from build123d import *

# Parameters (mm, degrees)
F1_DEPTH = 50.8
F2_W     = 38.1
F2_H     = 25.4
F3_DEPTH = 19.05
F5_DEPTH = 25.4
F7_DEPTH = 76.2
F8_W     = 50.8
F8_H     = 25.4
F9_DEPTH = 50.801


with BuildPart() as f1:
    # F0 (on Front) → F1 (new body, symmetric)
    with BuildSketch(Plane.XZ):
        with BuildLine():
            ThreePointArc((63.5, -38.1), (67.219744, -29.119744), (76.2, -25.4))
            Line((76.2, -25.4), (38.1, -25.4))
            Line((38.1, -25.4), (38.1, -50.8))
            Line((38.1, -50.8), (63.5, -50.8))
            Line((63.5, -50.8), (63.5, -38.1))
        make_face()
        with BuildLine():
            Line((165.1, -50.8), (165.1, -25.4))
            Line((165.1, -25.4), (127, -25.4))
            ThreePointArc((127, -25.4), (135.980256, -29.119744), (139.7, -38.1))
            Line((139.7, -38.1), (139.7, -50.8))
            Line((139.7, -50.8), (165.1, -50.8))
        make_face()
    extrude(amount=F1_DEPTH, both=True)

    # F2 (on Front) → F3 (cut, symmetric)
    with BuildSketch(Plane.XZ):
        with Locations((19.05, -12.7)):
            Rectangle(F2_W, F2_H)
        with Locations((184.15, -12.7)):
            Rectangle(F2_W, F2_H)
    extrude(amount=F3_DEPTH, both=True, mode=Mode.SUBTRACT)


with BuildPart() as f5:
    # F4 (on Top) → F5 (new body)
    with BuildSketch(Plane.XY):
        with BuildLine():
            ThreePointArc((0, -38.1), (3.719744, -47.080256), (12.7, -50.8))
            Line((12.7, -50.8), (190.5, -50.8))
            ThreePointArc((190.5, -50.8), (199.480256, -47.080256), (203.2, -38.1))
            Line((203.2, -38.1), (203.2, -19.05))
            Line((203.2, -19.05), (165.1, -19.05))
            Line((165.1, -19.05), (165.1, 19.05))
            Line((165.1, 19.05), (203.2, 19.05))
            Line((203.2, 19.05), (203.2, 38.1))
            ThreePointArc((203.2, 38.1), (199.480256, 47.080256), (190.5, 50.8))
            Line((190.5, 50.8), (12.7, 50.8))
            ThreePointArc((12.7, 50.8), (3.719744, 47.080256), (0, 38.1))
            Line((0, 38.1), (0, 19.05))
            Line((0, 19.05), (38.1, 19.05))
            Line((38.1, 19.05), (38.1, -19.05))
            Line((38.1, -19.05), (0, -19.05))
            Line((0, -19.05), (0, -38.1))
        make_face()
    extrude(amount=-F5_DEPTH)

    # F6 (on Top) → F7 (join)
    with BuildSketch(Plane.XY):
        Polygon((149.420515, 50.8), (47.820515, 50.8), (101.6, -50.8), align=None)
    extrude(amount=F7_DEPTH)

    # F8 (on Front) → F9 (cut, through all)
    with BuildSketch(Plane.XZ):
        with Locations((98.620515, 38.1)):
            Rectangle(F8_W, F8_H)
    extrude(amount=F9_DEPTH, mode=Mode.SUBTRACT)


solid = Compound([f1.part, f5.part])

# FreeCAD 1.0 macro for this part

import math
import FreeCAD as App
import Part
import Sketcher
from FreeCAD import Vector
Q = App.Units.Quantity

doc = App.newDocument("Part")
params = doc.addObject("Spreadsheet::Sheet", "Params")
for row, (alias, value) in enumerate([
    ("sketch1_radius", "0.5 in"),
    ("sketch1_width", "1 in"),
    ("pad1_length", "4 in"),
    ("sketch2_height", "1 in"),
    ("sketch2_width", "1.5 in"),
    ("pocket1_length", "1.5 in"),
    ("sketch3_radius", "0.5 in"),
    ("sketch3_width", "7 in"),
    ("sketch3_width2", "1.5 in"),
    ("pad2_length", "1 in"),
    ("sketch4_width", "4 in"),
    ("pad3_length", "3 in"),
    ("sketch5_width", "2 in"),
    ("sketch5_height", "1 in"),
], start=1):
    params.set(f"A{row}", alias)
    params.set(f"B{row}", "=" + value)
    params.setAlias(f"B{row}", alias)

body = doc.addObject("PartDesign::Body", "Body")
body.AllowCompound = True

sketch1 = body.newObject("Sketcher::SketchObject", "Sketch")
sketch1.AttachmentSupport = (doc.getObject("XZ_Plane"), [""])
sketch1.MapMode = "FlatFace"
sketch1.addGeometry([
    Part.ArcOfCircle(Part.Circle(Vector(76.2, -38.1, 0), Vector(0, 0, 1), 12.7), math.radians(90.000002), math.radians(179.999998)),
    Part.LineSegment(Vector(76.2, -25.4, 0), Vector(38.1, -25.4, 0)),
    Part.LineSegment(Vector(38.1, -25.4, 0), Vector(38.1, -50.8, 0)),
    Part.LineSegment(Vector(38.1, -50.8, 0), Vector(63.5, -50.8, 0)),
    Part.LineSegment(Vector(63.5, -50.8, 0), Vector(63.5, -38.1, 0)),
    Part.LineSegment(Vector(165.1, -50.8, 0), Vector(165.1, -25.4, 0)),
    Part.LineSegment(Vector(165.1, -25.4, 0), Vector(127, -25.4, 0)),
    Part.ArcOfCircle(Part.Circle(Vector(127, -38.1, 0), Vector(0, 0, 1), 12.7), math.radians(0.000002), math.radians(89.999998)),
    Part.LineSegment(Vector(139.7, -38.1, 0), Vector(139.7, -50.8, 0)),
    Part.LineSegment(Vector(139.7, -50.8, 0), Vector(165.1, -50.8, 0)),
], False)
sketch1.addConstraint([
    Sketcher.Constraint("Tangent", 0, 1, 1, 1),
    Sketcher.Constraint("Coincident", 1, 2, 2, 1),
    Sketcher.Constraint("Coincident", 2, 2, 3, 1),
    Sketcher.Constraint("Coincident", 3, 2, 4, 1),
    Sketcher.Constraint("Tangent", 4, 2, 0, 2),
    Sketcher.Constraint("Coincident", 5, 2, 6, 1),
    Sketcher.Constraint("Tangent", 6, 2, 7, 2),
    Sketcher.Constraint("Tangent", 7, 1, 8, 1),
    Sketcher.Constraint("Coincident", 8, 2, 9, 1),
    Sketcher.Constraint("Coincident", 9, 2, 5, 1),
    Sketcher.Constraint("Horizontal", 1),
    Sketcher.Constraint("Vertical", 2),
    Sketcher.Constraint("Horizontal", 3),
    Sketcher.Constraint("Vertical", 4),
    Sketcher.Constraint("Vertical", 5),
    Sketcher.Constraint("Horizontal", 6),
    Sketcher.Constraint("Vertical", 8),
    Sketcher.Constraint("Horizontal", 9),
    Sketcher.Constraint("Equal", 0, 7),
    Sketcher.Constraint("Horizontal", 0, 3, 7, 3),
    Sketcher.Constraint("Horizontal", 3, 2, 8, 2),
    Sketcher.Constraint("Equal", 1, 6),
    Sketcher.Constraint("Equal", 9, 2),
    Sketcher.Constraint("Radius", 0, Q("0.5 in")),
    Sketcher.Constraint("DistanceX", 3, 1, 3, 2, Q("1 in")),
    Sketcher.Constraint("DistanceX", -1, 1, 0, 3, Q("3 in")),
    Sketcher.Constraint("DistanceX", -1, 1, 7, 3, Q("5 in")),
    Sketcher.Constraint("DistanceY", 0, 1, -1, 1, Q("1 in")),
])
sketch1.setExpression("Constraints[23]", "Params.sketch1_radius")
sketch1.setExpression("Constraints[24]", "Params.sketch1_width")
pad1 = body.newObject("PartDesign::Pad", "Pad")
pad1.Profile = sketch1
pad1.setExpression("Length", "Params.pad1_length")
pad1.Midplane = True

sketch2 = body.newObject("Sketcher::SketchObject", "Sketch001")
sketch2.AttachmentSupport = (doc.getObject("XZ_Plane"), [""])
sketch2.MapMode = "FlatFace"
sketch2.addGeometry([
    Part.LineSegment(Vector(0, 0, 0), Vector(0, -25.4, 0)),
    Part.LineSegment(Vector(0, -25.4, 0), Vector(38.1, -25.4, 0)),
    Part.LineSegment(Vector(38.1, -25.4, 0), Vector(38.1, 0, 0)),
    Part.LineSegment(Vector(38.1, 0, 0), Vector(0, 0, 0)),
    Part.LineSegment(Vector(165.1, 0, 0), Vector(165.1, -25.4, 0)),
    Part.LineSegment(Vector(165.1, -25.4, 0), Vector(203.2, -25.4, 0)),
    Part.LineSegment(Vector(203.2, -25.4, 0), Vector(203.2, 0, 0)),
    Part.LineSegment(Vector(203.2, 0, 0), Vector(165.1, 0, 0)),
], False)
sketch2.addConstraint([
    Sketcher.Constraint("Coincident", 0, 2, 1, 1),
    Sketcher.Constraint("Coincident", 1, 2, 2, 1),
    Sketcher.Constraint("Coincident", 2, 2, 3, 1),
    Sketcher.Constraint("Coincident", 3, 2, 0, 1),
    Sketcher.Constraint("Coincident", 4, 2, 5, 1),
    Sketcher.Constraint("Coincident", 5, 2, 6, 1),
    Sketcher.Constraint("Coincident", 6, 2, 7, 1),
    Sketcher.Constraint("Coincident", 7, 2, 4, 1),
    Sketcher.Constraint("Vertical", 0),
    Sketcher.Constraint("Horizontal", 1),
    Sketcher.Constraint("Vertical", 2),
    Sketcher.Constraint("Horizontal", 3),
    Sketcher.Constraint("Vertical", 4),
    Sketcher.Constraint("Horizontal", 5),
    Sketcher.Constraint("Vertical", 6),
    Sketcher.Constraint("Horizontal", 7),
    Sketcher.Constraint("Coincident", 3, 2, -1, 1),
    Sketcher.Constraint("PointOnObject", 6, 2, -1),
    Sketcher.Constraint("Horizontal", 1, 2, 4, 2),
    Sketcher.Constraint("Equal", 3, 5),
    Sketcher.Constraint("DistanceY", 0, 2, 0, 1, Q("1 in")),
    Sketcher.Constraint("DistanceX", 1, 1, 1, 2, Q("1.5 in")),
    Sketcher.Constraint("DistanceX", -1, 1, 5, 2, Q("8 in")),
])
sketch2.setExpression("Constraints[20]", "Params.sketch2_height")
sketch2.setExpression("Constraints[21]", "Params.sketch2_width")
pocket1 = body.newObject("PartDesign::Pocket", "Pocket")
pocket1.Profile = sketch2
pocket1.setExpression("Length", "Params.pocket1_length")
pocket1.Midplane = True
body2 = doc.addObject("PartDesign::Body", "Body001")

sketch3 = body2.newObject("Sketcher::SketchObject", "Sketch002")
sketch3.AttachmentSupport = (doc.getObject("XY_Plane001"), [""])
sketch3.MapMode = "FlatFace"
sketch3.addGeometry([
    Part.ArcOfCircle(Part.Circle(Vector(12.7, -38.1, 0), Vector(0, 0, 1), 12.7), math.radians(-179.999998), math.radians(-90.000002)),
    Part.LineSegment(Vector(12.7, -50.8, 0), Vector(190.5, -50.8, 0)),
    Part.ArcOfCircle(Part.Circle(Vector(190.5, -38.1, 0), Vector(0, 0, 1), 12.7), math.radians(-89.999998), math.radians(-0.000002)),
    Part.LineSegment(Vector(203.2, -38.1, 0), Vector(203.2, -19.05, 0)),
    Part.LineSegment(Vector(203.2, -19.05, 0), Vector(165.1, -19.05, 0)),
    Part.LineSegment(Vector(165.1, -19.05, 0), Vector(165.1, 19.05, 0)),
    Part.LineSegment(Vector(165.1, 19.05, 0), Vector(203.2, 19.05, 0)),
    Part.LineSegment(Vector(203.2, 19.05, 0), Vector(203.2, 38.1, 0)),
    Part.ArcOfCircle(Part.Circle(Vector(190.5, 38.1, 0), Vector(0, 0, 1), 12.7), math.radians(0.000002), math.radians(89.999998)),
    Part.LineSegment(Vector(190.5, 50.8, 0), Vector(12.7, 50.8, 0)),
    Part.ArcOfCircle(Part.Circle(Vector(12.7, 38.1, 0), Vector(0, 0, 1), 12.7), math.radians(90.000002), math.radians(179.999998)),
    Part.LineSegment(Vector(0, 38.1, 0), Vector(0, 19.05, 0)),
    Part.LineSegment(Vector(0, 19.05, 0), Vector(38.1, 19.05, 0)),
    Part.LineSegment(Vector(38.1, 19.05, 0), Vector(38.1, -19.05, 0)),
    Part.LineSegment(Vector(38.1, -19.05, 0), Vector(0, -19.05, 0)),
    Part.LineSegment(Vector(0, -19.05, 0), Vector(0, -38.1, 0)),
], False)
sketch3.addConstraint([
    Sketcher.Constraint("Tangent", 0, 2, 1, 1),
    Sketcher.Constraint("Tangent", 1, 2, 2, 1),
    Sketcher.Constraint("Tangent", 2, 2, 3, 1),
    Sketcher.Constraint("Coincident", 3, 2, 4, 1),
    Sketcher.Constraint("Coincident", 4, 2, 5, 1),
    Sketcher.Constraint("Coincident", 5, 2, 6, 1),
    Sketcher.Constraint("Coincident", 6, 2, 7, 1),
    Sketcher.Constraint("Tangent", 7, 2, 8, 1),
    Sketcher.Constraint("Tangent", 8, 2, 9, 1),
    Sketcher.Constraint("Tangent", 9, 2, 10, 1),
    Sketcher.Constraint("Tangent", 10, 2, 11, 1),
    Sketcher.Constraint("Coincident", 11, 2, 12, 1),
    Sketcher.Constraint("Coincident", 12, 2, 13, 1),
    Sketcher.Constraint("Coincident", 13, 2, 14, 1),
    Sketcher.Constraint("Coincident", 14, 2, 15, 1),
    Sketcher.Constraint("Tangent", 15, 2, 0, 1),
    Sketcher.Constraint("Horizontal", 1),
    Sketcher.Constraint("Vertical", 3),
    Sketcher.Constraint("Horizontal", 4),
    Sketcher.Constraint("Vertical", 5),
    Sketcher.Constraint("Horizontal", 6),
    Sketcher.Constraint("Vertical", 7),
    Sketcher.Constraint("Horizontal", 9),
    Sketcher.Constraint("Vertical", 11),
    Sketcher.Constraint("Horizontal", 12),
    Sketcher.Constraint("Vertical", 13),
    Sketcher.Constraint("Horizontal", 14),
    Sketcher.Constraint("Vertical", 15),
    Sketcher.Constraint("Equal", 0, 2),
    Sketcher.Constraint("Equal", 2, 8),
    Sketcher.Constraint("Equal", 8, 10),
    Sketcher.Constraint("Symmetric", 11, 2, 14, 2, -1, 1),
    Sketcher.Constraint("Symmetric", 2, 3, 8, 3, -1),
    Sketcher.Constraint("PointOnObject", 10, 2, -2),
    Sketcher.Constraint("Horizontal", 6, 2, 11, 2),
    Sketcher.Constraint("Horizontal", 4, 2, 13, 2),
    Sketcher.Constraint("Equal", 6, 12),
    Sketcher.Constraint("Equal", 14, 5),
    Sketcher.Constraint("Radius", 0, Q("0.5 in")),
    Sketcher.Constraint("DistanceX", 1, 1, 1, 2, Q("7 in")),
    Sketcher.Constraint("DistanceX", 4, 2, 4, 1, Q("1.5 in")),
    Sketcher.Constraint("DistanceY", 0, 2, -1, 1, Q("2 in")),
])
sketch3.setExpression("Constraints[38]", "Params.sketch3_radius")
sketch3.setExpression("Constraints[39]", "Params.sketch3_width")
sketch3.setExpression("Constraints[40]", "Params.sketch3_width2")
pad2 = body2.newObject("PartDesign::Pad", "Pad001")
pad2.Profile = sketch3
pad2.setExpression("Length", "Params.pad2_length")
pad2.Reversed = True

sketch4 = body2.newObject("Sketcher::SketchObject", "Sketch003")
sketch4.AttachmentSupport = (doc.getObject("XY_Plane001"), [""])
sketch4.MapMode = "FlatFace"
sketch4.addGeometry([
    Part.LineSegment(Vector(149.420515, 50.8, 0), Vector(47.820515, 50.8, 0)),
    Part.LineSegment(Vector(47.820515, 50.8, 0), Vector(101.6, -50.8, 0)),
    Part.LineSegment(Vector(101.6, -50.8, 0), Vector(149.420515, 50.8, 0)),
], False)
sketch4.addConstraint([
    Sketcher.Constraint("Coincident", 0, 2, 1, 1),
    Sketcher.Constraint("Coincident", 1, 2, 2, 1),
    Sketcher.Constraint("Coincident", 2, 2, 0, 1),
    Sketcher.Constraint("Horizontal", 0),
    Sketcher.Constraint("DistanceX", 0, 2, 0, 1, Q("4 in")),
    Sketcher.Constraint("DistanceY", -1, 1, 0, 2, Q("2 in")),
    Sketcher.Constraint("DistanceX", -1, 1, 1, 2, Q("4 in")),
    Sketcher.Constraint("DistanceY", 1, 2, -1, 1, Q("2 in")),
    Sketcher.Constraint("Distance", 1, 114.955613),
])
sketch4.setExpression("Constraints[4]", "Params.sketch4_width")
pad3 = body2.newObject("PartDesign::Pad", "Pad002")
pad3.Profile = sketch4
pad3.setExpression("Length", "Params.pad3_length")

sketch5 = body2.newObject("Sketcher::SketchObject", "Sketch004")
sketch5.AttachmentSupport = (doc.getObject("XZ_Plane001"), [""])
sketch5.MapMode = "FlatFace"
sketch5.addGeometry([
    Part.LineSegment(Vector(73.220515, 50.8, 0), Vector(73.220515, 25.4, 0)),
    Part.LineSegment(Vector(73.220515, 25.4, 0), Vector(124.020515, 25.4, 0)),
    Part.LineSegment(Vector(124.020515, 25.4, 0), Vector(124.020515, 50.8, 0)),
    Part.LineSegment(Vector(124.020515, 50.8, 0), Vector(73.220515, 50.8, 0)),
], False)
sketch5.addConstraint([
    Sketcher.Constraint("Coincident", 0, 2, 1, 1),
    Sketcher.Constraint("Coincident", 1, 2, 2, 1),
    Sketcher.Constraint("Coincident", 2, 2, 3, 1),
    Sketcher.Constraint("Coincident", 3, 2, 0, 1),
    Sketcher.Constraint("Vertical", 0),
    Sketcher.Constraint("Horizontal", 1),
    Sketcher.Constraint("Vertical", 2),
    Sketcher.Constraint("Horizontal", 3),
    Sketcher.Constraint("DistanceX", 1, 1, 1, 2, Q("2 in")),
    Sketcher.Constraint("DistanceY", 0, 2, 0, 1, Q("1 in")),
    Sketcher.Constraint("DistanceY", -1, 1, 0, 2, Q("1 in")),
    Sketcher.Constraint("DistanceX", -1, 1, 0, 2, 73.220515),
])
sketch5.setExpression("Constraints[8]", "Params.sketch5_width")
sketch5.setExpression("Constraints[9]", "Params.sketch5_height")
pocket2 = body2.newObject("PartDesign::Pocket", "Pocket001")
pocket2.Profile = sketch5
pocket2.Type = "ThroughAll"
pocket2.Reversed = True

doc.recompute()
